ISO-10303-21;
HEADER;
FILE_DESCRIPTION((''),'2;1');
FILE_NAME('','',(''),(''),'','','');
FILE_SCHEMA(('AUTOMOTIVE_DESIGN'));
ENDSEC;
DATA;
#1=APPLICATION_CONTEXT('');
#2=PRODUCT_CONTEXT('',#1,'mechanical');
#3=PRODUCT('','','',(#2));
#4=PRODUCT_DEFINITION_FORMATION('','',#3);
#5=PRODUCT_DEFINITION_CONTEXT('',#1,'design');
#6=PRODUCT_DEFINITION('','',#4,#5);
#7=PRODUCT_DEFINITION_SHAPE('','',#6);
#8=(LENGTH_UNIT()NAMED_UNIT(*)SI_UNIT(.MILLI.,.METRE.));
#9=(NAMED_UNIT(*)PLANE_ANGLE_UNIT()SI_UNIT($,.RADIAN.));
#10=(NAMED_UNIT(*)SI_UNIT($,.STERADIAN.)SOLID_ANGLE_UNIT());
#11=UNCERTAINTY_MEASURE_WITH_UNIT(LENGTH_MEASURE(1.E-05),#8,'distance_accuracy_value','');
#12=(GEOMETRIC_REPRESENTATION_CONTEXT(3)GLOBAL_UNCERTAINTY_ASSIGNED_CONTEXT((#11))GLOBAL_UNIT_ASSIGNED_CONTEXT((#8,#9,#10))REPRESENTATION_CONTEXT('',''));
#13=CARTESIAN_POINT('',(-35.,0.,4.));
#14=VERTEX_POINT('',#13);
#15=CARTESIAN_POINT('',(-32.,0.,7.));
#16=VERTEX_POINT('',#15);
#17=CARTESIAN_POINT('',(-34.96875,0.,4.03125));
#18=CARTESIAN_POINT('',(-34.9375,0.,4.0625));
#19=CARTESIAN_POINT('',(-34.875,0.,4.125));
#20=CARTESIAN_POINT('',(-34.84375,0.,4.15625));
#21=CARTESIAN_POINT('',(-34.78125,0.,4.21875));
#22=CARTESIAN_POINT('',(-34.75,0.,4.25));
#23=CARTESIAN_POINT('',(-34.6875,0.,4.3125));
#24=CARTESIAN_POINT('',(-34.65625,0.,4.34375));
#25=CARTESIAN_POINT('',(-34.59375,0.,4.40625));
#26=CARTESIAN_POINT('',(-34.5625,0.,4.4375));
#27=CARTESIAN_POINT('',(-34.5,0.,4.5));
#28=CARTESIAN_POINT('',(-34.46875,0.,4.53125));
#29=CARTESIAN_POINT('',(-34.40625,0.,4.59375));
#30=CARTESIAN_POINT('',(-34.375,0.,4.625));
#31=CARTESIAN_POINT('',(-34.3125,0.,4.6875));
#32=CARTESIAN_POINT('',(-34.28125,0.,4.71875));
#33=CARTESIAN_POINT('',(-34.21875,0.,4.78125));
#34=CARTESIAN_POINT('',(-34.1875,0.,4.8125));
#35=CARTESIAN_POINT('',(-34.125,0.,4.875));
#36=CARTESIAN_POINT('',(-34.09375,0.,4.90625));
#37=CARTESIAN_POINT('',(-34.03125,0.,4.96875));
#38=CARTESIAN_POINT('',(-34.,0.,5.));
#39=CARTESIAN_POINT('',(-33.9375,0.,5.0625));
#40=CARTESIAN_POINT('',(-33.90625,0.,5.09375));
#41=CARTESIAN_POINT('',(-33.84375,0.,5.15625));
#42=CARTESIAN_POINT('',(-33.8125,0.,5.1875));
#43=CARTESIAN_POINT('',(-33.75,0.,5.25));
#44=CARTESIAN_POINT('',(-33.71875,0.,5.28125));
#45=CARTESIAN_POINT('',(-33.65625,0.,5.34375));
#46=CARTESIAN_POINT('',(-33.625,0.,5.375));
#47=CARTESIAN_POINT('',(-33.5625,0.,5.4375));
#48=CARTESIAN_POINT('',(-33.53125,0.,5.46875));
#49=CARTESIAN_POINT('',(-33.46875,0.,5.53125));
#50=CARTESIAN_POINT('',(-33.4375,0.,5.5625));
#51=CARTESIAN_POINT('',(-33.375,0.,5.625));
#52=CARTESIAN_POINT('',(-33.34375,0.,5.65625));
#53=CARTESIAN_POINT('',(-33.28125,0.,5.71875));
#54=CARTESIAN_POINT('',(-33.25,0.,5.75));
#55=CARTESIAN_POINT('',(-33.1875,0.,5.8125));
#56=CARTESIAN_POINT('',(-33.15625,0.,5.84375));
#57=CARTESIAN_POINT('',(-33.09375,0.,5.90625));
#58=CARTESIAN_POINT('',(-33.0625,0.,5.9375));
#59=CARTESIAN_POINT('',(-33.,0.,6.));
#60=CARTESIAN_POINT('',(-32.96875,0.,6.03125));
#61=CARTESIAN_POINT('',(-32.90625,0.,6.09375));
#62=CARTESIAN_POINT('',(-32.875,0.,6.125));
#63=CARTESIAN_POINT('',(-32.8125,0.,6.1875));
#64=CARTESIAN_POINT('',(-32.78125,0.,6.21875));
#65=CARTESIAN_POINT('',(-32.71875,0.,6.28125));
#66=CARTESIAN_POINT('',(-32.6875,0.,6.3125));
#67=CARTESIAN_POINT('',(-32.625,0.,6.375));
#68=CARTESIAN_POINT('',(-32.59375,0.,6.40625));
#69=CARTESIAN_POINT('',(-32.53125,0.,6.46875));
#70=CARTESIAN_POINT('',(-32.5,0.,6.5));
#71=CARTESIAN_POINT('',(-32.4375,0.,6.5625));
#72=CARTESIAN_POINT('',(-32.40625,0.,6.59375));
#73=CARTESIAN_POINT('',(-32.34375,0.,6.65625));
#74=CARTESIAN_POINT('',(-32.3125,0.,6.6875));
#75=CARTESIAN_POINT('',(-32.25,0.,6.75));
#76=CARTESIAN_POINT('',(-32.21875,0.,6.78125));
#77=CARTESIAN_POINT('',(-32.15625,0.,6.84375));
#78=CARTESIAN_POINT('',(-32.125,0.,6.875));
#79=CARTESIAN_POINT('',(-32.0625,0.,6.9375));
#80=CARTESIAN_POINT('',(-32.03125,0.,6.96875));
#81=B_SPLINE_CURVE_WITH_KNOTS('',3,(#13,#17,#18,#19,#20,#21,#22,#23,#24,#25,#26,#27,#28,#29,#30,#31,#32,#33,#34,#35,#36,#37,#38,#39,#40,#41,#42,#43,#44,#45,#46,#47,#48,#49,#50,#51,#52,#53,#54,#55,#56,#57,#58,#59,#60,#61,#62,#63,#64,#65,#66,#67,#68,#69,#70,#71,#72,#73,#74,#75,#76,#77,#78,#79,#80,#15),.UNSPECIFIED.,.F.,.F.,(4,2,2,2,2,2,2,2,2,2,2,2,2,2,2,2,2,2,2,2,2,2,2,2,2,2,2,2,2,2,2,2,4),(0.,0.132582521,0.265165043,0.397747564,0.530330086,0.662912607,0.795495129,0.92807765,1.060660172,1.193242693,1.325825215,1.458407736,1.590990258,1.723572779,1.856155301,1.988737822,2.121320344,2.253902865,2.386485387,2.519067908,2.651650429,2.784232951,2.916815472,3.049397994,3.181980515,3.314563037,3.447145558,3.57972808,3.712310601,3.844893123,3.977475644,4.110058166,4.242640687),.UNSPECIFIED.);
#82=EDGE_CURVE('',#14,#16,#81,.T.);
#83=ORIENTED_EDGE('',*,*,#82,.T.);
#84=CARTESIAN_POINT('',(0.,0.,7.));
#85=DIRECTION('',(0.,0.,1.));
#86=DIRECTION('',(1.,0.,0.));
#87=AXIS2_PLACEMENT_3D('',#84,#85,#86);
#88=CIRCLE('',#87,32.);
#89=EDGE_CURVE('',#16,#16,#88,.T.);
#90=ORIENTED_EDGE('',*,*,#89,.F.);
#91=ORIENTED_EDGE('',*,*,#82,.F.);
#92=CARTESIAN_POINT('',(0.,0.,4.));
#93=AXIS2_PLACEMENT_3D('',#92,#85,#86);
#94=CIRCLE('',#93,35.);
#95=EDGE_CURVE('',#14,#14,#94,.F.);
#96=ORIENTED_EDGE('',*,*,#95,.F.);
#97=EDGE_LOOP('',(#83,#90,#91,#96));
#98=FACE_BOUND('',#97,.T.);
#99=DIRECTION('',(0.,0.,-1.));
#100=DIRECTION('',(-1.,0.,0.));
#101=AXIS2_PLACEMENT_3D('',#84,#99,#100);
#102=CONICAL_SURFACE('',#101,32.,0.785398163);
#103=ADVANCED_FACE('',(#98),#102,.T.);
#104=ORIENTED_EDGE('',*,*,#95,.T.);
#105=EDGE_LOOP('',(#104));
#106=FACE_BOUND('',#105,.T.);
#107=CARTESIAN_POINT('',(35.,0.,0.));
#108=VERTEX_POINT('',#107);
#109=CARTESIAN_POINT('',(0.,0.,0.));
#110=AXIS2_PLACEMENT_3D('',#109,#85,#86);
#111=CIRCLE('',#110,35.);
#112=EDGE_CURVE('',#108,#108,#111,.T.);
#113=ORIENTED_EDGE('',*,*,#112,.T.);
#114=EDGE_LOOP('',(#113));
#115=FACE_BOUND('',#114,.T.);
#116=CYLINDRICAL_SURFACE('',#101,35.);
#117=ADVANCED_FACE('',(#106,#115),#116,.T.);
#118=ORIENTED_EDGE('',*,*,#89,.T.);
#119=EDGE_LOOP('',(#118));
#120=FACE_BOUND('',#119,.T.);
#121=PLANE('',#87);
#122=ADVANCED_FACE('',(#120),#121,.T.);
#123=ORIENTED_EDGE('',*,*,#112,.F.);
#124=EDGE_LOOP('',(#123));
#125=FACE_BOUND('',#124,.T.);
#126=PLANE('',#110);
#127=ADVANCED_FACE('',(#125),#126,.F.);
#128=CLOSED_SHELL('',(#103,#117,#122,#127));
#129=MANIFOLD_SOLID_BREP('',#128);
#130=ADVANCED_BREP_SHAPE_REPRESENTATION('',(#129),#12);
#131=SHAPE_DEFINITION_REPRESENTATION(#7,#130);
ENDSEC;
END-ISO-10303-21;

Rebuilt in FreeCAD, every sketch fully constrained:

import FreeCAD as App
import Part
import Sketcher
from FreeCAD import Vector


def edges_at(feature, points):
    """Names of the edges that pass closest to the given points."""
    edges = feature.Shape.Edges
    near = lambda p: min(range(len(edges)), key=lambda i: edges[i].distToShape(Part.Vertex(*p))[0])
    return sorted({f"Edge{near(p) + 1}" for p in points})

doc = App.newDocument("Part")
body = doc.addObject("PartDesign::Body", "Body")

# Sketch on XY plane
sketch1 = doc.addObject("Sketcher::SketchObject", "Sketch")
body.addObject(sketch1)
sketch1.AttachmentSupport = (doc.XY_Plane, [""])
sketch1.MapMode = "FlatFace"
sketch1.addGeometry(Part.Circle(Vector(0, 0, 0), Vector(0, 0, 1), 35), False)
sketch1.addConstraint(Sketcher.Constraint("Coincident", 0, 3, -1, 1))
sketch1.addConstraint(Sketcher.Constraint("Diameter", 0, 70.0))
pad1 = doc.addObject("PartDesign::Pad", "Pad")
body.addObject(pad1)
pad1.Profile = sketch1
pad1.Length = 7
doc.recompute()

chamfer = doc.addObject("PartDesign::Chamfer", "Chamfer")
body.addObject(chamfer)
chamfer.Base = (pad1, edges_at(pad1, [(-35, 0, 7)]))
chamfer.Size = 3

doc.recompute()
